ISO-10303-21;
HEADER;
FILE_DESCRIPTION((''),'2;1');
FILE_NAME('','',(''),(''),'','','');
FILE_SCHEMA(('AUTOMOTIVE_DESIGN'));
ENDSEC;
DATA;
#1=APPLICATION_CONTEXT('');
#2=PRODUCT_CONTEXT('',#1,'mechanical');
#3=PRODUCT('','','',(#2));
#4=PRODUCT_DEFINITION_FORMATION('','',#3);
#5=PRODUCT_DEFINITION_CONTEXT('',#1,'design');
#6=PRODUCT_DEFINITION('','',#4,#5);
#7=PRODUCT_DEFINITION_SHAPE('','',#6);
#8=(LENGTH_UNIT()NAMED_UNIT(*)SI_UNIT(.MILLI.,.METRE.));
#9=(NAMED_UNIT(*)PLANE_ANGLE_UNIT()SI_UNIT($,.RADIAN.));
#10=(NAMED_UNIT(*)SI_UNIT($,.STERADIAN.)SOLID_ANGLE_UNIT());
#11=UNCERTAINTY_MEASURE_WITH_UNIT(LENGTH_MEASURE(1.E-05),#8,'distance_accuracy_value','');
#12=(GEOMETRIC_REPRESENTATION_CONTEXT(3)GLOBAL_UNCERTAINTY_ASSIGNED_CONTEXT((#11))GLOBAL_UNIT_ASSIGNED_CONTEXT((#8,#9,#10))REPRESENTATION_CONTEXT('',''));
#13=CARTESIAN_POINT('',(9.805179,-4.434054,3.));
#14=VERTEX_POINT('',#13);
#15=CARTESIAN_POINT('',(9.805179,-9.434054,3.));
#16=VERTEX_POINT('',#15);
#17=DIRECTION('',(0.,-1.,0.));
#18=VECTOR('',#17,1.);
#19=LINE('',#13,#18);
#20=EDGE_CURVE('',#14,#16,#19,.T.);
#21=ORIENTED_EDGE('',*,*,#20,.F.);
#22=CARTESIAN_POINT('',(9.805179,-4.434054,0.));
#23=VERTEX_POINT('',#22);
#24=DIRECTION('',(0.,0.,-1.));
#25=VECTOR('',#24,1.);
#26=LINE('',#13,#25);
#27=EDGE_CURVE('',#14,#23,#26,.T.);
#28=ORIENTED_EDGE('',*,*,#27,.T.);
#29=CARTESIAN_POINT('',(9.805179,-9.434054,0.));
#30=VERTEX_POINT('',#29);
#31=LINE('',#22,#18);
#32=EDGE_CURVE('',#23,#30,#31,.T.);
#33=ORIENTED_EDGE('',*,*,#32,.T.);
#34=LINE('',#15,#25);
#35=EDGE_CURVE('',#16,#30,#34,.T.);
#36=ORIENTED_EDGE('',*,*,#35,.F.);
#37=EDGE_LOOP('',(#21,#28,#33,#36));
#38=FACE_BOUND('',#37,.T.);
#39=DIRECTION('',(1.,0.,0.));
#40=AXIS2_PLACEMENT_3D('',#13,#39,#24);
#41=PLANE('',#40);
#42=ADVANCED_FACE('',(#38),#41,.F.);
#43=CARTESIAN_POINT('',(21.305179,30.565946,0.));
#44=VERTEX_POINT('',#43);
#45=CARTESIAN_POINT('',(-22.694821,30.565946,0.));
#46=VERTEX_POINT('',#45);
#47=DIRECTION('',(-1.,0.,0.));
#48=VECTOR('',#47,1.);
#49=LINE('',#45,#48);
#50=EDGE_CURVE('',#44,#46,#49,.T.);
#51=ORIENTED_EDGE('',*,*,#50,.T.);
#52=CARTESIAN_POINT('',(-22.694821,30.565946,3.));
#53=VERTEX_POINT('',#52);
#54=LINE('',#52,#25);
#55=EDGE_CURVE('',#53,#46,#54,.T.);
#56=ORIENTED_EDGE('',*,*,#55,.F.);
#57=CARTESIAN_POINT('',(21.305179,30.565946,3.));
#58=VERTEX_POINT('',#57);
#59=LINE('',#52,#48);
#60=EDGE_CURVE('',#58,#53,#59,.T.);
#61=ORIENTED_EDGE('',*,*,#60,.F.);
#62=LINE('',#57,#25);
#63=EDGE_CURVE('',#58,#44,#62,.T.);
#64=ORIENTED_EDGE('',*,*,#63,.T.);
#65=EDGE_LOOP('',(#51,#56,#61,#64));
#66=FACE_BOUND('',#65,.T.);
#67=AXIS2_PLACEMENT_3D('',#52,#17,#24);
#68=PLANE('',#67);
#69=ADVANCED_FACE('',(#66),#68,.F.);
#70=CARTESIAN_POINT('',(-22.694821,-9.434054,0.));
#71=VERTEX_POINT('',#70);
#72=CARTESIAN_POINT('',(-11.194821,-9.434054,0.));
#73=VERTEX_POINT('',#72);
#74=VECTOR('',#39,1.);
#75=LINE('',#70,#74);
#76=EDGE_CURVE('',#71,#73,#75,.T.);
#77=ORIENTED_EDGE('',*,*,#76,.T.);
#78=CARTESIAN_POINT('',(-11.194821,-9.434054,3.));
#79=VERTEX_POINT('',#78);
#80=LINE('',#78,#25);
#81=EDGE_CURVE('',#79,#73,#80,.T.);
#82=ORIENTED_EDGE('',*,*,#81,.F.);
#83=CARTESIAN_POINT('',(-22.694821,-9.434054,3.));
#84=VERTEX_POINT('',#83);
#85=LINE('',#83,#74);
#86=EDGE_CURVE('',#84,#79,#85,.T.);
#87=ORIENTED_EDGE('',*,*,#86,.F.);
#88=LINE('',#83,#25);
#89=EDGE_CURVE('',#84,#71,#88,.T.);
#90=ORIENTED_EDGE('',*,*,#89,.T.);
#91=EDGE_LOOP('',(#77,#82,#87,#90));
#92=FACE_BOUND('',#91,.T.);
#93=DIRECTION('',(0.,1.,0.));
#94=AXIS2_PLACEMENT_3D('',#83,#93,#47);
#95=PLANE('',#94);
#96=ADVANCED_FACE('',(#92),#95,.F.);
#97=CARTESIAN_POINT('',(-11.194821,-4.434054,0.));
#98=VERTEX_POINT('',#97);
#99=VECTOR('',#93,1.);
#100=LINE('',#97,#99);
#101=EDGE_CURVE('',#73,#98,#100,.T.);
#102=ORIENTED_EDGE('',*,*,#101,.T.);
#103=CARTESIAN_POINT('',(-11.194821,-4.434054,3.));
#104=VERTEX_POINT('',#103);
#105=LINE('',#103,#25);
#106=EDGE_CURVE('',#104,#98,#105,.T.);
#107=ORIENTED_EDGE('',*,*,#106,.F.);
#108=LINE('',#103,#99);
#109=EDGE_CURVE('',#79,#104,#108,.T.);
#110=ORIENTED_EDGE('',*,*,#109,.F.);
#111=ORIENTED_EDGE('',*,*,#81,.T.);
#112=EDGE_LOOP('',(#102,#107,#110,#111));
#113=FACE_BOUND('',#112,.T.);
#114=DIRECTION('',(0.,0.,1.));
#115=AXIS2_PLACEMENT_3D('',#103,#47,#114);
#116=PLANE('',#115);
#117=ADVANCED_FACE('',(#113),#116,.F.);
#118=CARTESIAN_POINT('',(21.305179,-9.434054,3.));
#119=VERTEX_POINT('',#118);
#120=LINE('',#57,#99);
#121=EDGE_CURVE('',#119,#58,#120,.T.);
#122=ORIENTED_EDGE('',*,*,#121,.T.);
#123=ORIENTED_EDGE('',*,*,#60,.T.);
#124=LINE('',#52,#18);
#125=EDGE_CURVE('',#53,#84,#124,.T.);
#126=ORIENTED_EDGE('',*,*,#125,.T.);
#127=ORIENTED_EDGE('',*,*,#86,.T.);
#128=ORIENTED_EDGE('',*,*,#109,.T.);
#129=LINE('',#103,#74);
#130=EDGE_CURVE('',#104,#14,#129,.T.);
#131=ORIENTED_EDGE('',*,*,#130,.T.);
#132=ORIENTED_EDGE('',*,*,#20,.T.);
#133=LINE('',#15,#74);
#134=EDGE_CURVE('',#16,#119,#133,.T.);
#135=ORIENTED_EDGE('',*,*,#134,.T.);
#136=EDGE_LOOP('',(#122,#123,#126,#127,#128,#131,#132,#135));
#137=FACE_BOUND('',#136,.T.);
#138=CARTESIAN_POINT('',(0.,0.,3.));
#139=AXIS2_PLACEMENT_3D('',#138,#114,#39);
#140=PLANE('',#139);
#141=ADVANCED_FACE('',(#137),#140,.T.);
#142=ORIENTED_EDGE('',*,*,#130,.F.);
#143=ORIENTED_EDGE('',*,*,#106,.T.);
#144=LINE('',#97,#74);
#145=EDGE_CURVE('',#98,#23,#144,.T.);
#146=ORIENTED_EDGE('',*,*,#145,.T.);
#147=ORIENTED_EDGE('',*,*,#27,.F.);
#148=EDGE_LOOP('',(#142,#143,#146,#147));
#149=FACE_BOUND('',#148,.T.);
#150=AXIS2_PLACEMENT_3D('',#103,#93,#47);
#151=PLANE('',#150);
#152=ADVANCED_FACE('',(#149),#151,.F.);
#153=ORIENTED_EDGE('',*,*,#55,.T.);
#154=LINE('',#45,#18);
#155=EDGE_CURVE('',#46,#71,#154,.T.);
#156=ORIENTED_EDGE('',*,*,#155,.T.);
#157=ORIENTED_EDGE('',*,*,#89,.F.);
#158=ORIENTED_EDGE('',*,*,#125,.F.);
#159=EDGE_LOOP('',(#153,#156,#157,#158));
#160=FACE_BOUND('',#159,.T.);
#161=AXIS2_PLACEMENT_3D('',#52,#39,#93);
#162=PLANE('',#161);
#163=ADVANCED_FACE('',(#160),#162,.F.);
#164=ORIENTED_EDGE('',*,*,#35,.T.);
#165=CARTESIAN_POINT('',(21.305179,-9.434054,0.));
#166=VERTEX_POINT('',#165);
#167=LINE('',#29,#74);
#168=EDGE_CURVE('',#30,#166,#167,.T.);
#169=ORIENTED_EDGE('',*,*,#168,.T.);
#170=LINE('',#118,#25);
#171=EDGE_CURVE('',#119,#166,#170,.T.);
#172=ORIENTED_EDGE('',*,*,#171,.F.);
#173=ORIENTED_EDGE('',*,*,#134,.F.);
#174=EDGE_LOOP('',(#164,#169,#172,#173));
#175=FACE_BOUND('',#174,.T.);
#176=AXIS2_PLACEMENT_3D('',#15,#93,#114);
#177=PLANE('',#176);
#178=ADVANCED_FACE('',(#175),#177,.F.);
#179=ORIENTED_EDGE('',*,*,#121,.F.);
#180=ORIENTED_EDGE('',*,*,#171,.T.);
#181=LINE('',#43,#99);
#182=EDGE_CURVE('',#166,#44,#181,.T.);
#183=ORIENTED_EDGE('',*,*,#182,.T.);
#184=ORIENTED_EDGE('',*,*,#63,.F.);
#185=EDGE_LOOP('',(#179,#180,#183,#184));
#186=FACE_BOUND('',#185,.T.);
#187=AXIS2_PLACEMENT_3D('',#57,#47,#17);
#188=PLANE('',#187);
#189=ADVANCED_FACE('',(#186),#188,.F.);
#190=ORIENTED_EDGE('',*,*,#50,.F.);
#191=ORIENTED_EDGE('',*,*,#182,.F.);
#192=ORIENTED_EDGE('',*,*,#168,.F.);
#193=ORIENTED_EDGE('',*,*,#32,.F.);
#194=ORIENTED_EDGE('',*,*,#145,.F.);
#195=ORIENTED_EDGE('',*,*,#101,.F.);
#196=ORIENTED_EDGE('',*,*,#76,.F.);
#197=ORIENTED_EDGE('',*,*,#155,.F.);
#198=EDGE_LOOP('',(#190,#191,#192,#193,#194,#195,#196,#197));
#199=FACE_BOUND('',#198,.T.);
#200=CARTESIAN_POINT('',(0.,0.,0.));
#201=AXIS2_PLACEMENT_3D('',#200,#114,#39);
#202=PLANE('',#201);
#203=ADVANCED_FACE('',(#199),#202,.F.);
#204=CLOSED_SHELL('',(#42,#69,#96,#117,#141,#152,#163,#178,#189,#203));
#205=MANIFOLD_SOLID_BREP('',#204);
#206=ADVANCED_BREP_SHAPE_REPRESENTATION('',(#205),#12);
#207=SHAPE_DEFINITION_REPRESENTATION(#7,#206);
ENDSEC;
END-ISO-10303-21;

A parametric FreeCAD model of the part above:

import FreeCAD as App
import Part
import Sketcher
from FreeCAD import Vector


def add_polygon(sketch, points):
    """Adds a closed chain of lines whose ends are joined by coincident constraints."""
    first, n = sketch.GeometryCount, len(points)
    for a, b in zip(points, points[1:] + points[:1]):
        sketch.addGeometry(Part.LineSegment(App.Vector(*a, 0), App.Vector(*b, 0)), False)
    for i in range(n):
        sketch.addConstraint(Sketcher.Constraint("Coincident", first + i, 2, first + (i + 1) % n, 1))

doc = App.newDocument("Part")
body = doc.addObject("PartDesign::Body", "Body")

# Sketch on XY plane
sketch1 = body.newObject("Sketcher::SketchObject", "Sketch")
sketch1.AttachmentSupport = (doc.getObject("XY_Plane"), [""])
sketch1.MapMode = "FlatFace"
add_polygon(sketch1, [(21.305179, 30.565946), (-22.694821, 30.565946), (-22.694821, -9.434054), (-11.194821, -9.434054), (-11.194821, -4.434054), (9.805179, -4.434054), (9.805179, -9.434054), (21.305179, -9.434054)])  # lines 0-7
sketch1.addConstraint(Sketcher.Constraint("Horizontal", 0))
sketch1.addConstraint(Sketcher.Constraint("Vertical", 1))
sketch1.addConstraint(Sketcher.Constraint("Horizontal", 2))
sketch1.addConstraint(Sketcher.Constraint("Vertical", 3))
sketch1.addConstraint(Sketcher.Constraint("Horizontal", 4))
sketch1.addConstraint(Sketcher.Constraint("Vertical", 5))
sketch1.addConstraint(Sketcher.Constraint("Horizontal", 6))
sketch1.addConstraint(Sketcher.Constraint("Vertical", 7))
sketch1.addConstraint(Sketcher.Constraint("Horizontal", 2, 2, 5, 2))
sketch1.addConstraint(Sketcher.Constraint("Equal", 2, 6))
sketch1.addConstraint(Sketcher.Constraint("DistanceX", 0, 2, 0, 1, 44.0))
sketch1.addConstraint(Sketcher.Constraint("DistanceX", 4, 1, 4, 2, 21.0))
sketch1.addConstraint(Sketcher.Constraint("DistanceY", 1, 2, 1, 1, 40.0))
sketch1.addConstraint(Sketcher.Constraint("DistanceY", 3, 1, 3, 2, 5.0))
sketch1.addConstraint(Sketcher.Constraint("DistanceX", 0, 2, -1, 1, 22.694821))
sketch1.addConstraint(Sketcher.Constraint("DistanceY", -1, 1, 0, 2, 30.565946))
pad1 = body.newObject("PartDesign::Pad", "Pad")
pad1.Profile = sketch1
pad1.Length = 3

doc.recompute()
